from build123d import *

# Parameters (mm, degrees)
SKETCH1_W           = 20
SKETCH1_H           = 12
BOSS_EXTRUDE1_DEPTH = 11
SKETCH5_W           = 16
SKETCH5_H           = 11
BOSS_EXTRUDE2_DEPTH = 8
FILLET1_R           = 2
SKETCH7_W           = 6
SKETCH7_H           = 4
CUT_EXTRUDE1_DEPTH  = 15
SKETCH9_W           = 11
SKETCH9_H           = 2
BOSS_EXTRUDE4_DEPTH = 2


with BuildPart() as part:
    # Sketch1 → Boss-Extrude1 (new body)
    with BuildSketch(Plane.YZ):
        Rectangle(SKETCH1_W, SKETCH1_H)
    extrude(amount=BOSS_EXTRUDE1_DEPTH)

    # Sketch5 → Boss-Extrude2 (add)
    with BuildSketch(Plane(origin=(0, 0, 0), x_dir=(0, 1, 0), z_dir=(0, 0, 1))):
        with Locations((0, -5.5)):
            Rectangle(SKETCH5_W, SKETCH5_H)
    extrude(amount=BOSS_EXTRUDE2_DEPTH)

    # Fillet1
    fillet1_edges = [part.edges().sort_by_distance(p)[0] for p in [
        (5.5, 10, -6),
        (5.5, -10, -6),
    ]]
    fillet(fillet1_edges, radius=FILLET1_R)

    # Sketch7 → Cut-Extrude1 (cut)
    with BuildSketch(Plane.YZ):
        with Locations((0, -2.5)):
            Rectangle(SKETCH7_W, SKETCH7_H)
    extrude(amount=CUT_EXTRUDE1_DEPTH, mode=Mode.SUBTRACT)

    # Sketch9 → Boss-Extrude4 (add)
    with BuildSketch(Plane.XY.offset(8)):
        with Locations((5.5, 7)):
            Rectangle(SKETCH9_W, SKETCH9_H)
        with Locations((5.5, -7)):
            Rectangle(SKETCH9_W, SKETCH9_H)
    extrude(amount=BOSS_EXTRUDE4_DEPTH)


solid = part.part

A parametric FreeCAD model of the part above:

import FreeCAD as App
import Part
import Sketcher

V = App.Vector


def edges_at(feature, points):
    """Names of the edges that pass closest to the given points."""
    edges = feature.Shape.Edges
    near = lambda p: min(range(len(edges)), key=lambda i: edges[i].distToShape(Part.Vertex(*p))[0])
    return sorted({f"Edge{near(p) + 1}" for p in points})

doc = App.newDocument("Part")
body = doc.addObject("PartDesign::Body", "Body")

# Sketch on YZ plane
sketch1 = body.newObject("Sketcher::SketchObject", "Sketch")
sketch1.AttachmentSupport = (doc.getObject("YZ_Plane"), [""])
sketch1.MapMode = "FlatFace"
sketch1.addGeometry([
    Part.LineSegment(V(-10, 6, 0), V(-10, -6, 0)),
    Part.LineSegment(V(-10, -6, 0), V(10, -6, 0)),
    Part.LineSegment(V(10, -6, 0), V(10, 6, 0)),
    Part.LineSegment(V(10, 6, 0), V(-10, 6, 0)),
], False)
sketch1.addConstraint([
    Sketcher.Constraint("Coincident", 0, 2, 1, 1),
    Sketcher.Constraint("Coincident", 1, 2, 2, 1),
    Sketcher.Constraint("Coincident", 2, 2, 3, 1),
    Sketcher.Constraint("Coincident", 3, 2, 0, 1),
    Sketcher.Constraint("Vertical", 0),
    Sketcher.Constraint("Horizontal", 1),
    Sketcher.Constraint("Vertical", 2),
    Sketcher.Constraint("Horizontal", 3),
    Sketcher.Constraint("Symmetric", 0, 2, 2, 2, -1, 1),
    Sketcher.Constraint("DistanceX", 1, 1, 1, 2, 20.0),
    Sketcher.Constraint("DistanceY", 0, 2, 0, 1, 12.0),
])
pad1 = body.newObject("PartDesign::Pad", "Pad")
pad1.Profile = sketch1
pad1.Length = 11

# Sketch on XY plane
sketch2 = body.newObject("Sketcher::SketchObject", "Sketch001")
sketch2.AttachmentSupport = (doc.getObject("XY_Plane"), [""])
sketch2.MapMode = "FlatFace"
sketch2.addGeometry([
    Part.LineSegment(V(0, -8, 0), V(11, -8, 0)),
    Part.LineSegment(V(11, -8, 0), V(11, 8, 0)),
    Part.LineSegment(V(11, 8, 0), V(0, 8, 0)),
    Part.LineSegment(V(0, 8, 0), V(0, -8, 0)),
], False)
sketch2.addConstraint([
    Sketcher.Constraint("Coincident", 0, 2, 1, 1),
    Sketcher.Constraint("Coincident", 1, 2, 2, 1),
    Sketcher.Constraint("Coincident", 2, 2, 3, 1),
    Sketcher.Constraint("Coincident", 3, 2, 0, 1),
    Sketcher.Constraint("Horizontal", 0),
    Sketcher.Constraint("Vertical", 1),
    Sketcher.Constraint("Horizontal", 2),
    Sketcher.Constraint("Vertical", 3),
    Sketcher.Constraint("Symmetric", 2, 2, 3, 2, -1, 1),
    Sketcher.Constraint("DistanceX", 0, 1, 0, 2, 11.0),
    Sketcher.Constraint("DistanceY", 1, 1, 1, 2, 16.0),
])
pad2 = body.newObject("PartDesign::Pad", "Pad001")
pad2.Profile = sketch2
pad2.Length = 8
doc.recompute()

fillet = body.newObject("PartDesign::Fillet", "Fillet")
fillet.Base = (pad2, edges_at(pad2, [(5.5, 10, -6), (5.5, -10, -6)]))
fillet.Radius = 2

# Sketch on YZ plane
sketch3 = body.newObject("Sketcher::SketchObject", "Sketch002")
sketch3.AttachmentSupport = (doc.getObject("YZ_Plane"), [""])
sketch3.MapMode = "FlatFace"
sketch3.addGeometry([
    Part.LineSegment(V(-3, -0.5, 0), V(-3, -4.5, 0)),
    Part.LineSegment(V(-3, -4.5, 0), V(3, -4.5, 0)),
    Part.LineSegment(V(3, -4.5, 0), V(3, -0.5, 0)),
    Part.LineSegment(V(3, -0.5, 0), V(-3, -0.5, 0)),
], False)
sketch3.addConstraint([
    Sketcher.Constraint("Coincident", 0, 2, 1, 1),
    Sketcher.Constraint("Coincident", 1, 2, 2, 1),
    Sketcher.Constraint("Coincident", 2, 2, 3, 1),
    Sketcher.Constraint("Coincident", 3, 2, 0, 1),
    Sketcher.Constraint("Vertical", 0),
    Sketcher.Constraint("Horizontal", 1),
    Sketcher.Constraint("Vertical", 2),
    Sketcher.Constraint("Horizontal", 3),
    Sketcher.Constraint("DistanceX", 1, 1, 1, 2, 6.0),
    Sketcher.Constraint("DistanceY", 0, 2, 0, 1, 4.0),
    Sketcher.Constraint("DistanceX", 0, 2, -1, 1, 3.0),
    Sketcher.Constraint("DistanceY", 0, 2, -1, 1, 4.5),
])
pocket1 = body.newObject("PartDesign::Pocket", "Pocket")
pocket1.Profile = sketch3
pocket1.Length = 15
pocket1.Reversed = True

# Sketch on XY plane
sketch4 = body.newObject("Sketcher::SketchObject", "Sketch003")
sketch4.AttachmentSupport = (doc.getObject("XY_Plane"), [""])
sketch4.MapMode = "FlatFace"
sketch4.AttachmentOffset = App.Placement(V(0, 0, 8), App.Rotation())
sketch4.addGeometry([
    Part.LineSegment(V(0, 8, 0), V(0, 6, 0)),  # 0
    Part.LineSegment(V(0, 6, 0), V(11, 6, 0)),  # 1
    Part.LineSegment(V(11, 6, 0), V(11, 8, 0)),  # 2
    Part.LineSegment(V(11, 8, 0), V(0, 8, 0)),  # 3
    Part.LineSegment(V(0, -6, 0), V(0, -8, 0)),  # 4
    Part.LineSegment(V(0, -8, 0), V(11, -8, 0)),  # 5
    Part.LineSegment(V(11, -8, 0), V(11, -6, 0)),  # 6
    Part.LineSegment(V(11, -6, 0), V(0, -6, 0)),  # 7
], False)
sketch4.addConstraint([
    Sketcher.Constraint("Coincident", 0, 2, 1, 1),
    Sketcher.Constraint("Coincident", 1, 2, 2, 1),
    Sketcher.Constraint("Coincident", 2, 2, 3, 1),
    Sketcher.Constraint("Coincident", 3, 2, 0, 1),
    Sketcher.Constraint("Coincident", 4, 2, 5, 1),
    Sketcher.Constraint("Coincident", 5, 2, 6, 1),
    Sketcher.Constraint("Coincident", 6, 2, 7, 1),
    Sketcher.Constraint("Coincident", 7, 2, 4, 1),
    Sketcher.Constraint("Vertical", 0),
    Sketcher.Constraint("Horizontal", 1),
    Sketcher.Constraint("Vertical", 2),
    Sketcher.Constraint("Horizontal", 3),
    Sketcher.Constraint("Vertical", 4),
    Sketcher.Constraint("Horizontal", 5),
    Sketcher.Constraint("Vertical", 6),
    Sketcher.Constraint("Horizontal", 7),
    Sketcher.Constraint("Symmetric", 3, 2, 4, 2, -1, 1),
    Sketcher.Constraint("Symmetric", 1, 2, 6, 2, -1),
    Sketcher.Constraint("PointOnObject", 0, 2, -2),
    Sketcher.Constraint("DistanceX", 1, 1, 1, 2, 11.0),
    Sketcher.Constraint("DistanceY", 0, 2, 0, 1, 2.0),
    Sketcher.Constraint("DistanceY", -1, 1, 0, 2, 6.0),
])
pad3 = body.newObject("PartDesign::Pad", "Pad002")
pad3.Profile = sketch4
pad3.Length = 2

doc.recompute()
